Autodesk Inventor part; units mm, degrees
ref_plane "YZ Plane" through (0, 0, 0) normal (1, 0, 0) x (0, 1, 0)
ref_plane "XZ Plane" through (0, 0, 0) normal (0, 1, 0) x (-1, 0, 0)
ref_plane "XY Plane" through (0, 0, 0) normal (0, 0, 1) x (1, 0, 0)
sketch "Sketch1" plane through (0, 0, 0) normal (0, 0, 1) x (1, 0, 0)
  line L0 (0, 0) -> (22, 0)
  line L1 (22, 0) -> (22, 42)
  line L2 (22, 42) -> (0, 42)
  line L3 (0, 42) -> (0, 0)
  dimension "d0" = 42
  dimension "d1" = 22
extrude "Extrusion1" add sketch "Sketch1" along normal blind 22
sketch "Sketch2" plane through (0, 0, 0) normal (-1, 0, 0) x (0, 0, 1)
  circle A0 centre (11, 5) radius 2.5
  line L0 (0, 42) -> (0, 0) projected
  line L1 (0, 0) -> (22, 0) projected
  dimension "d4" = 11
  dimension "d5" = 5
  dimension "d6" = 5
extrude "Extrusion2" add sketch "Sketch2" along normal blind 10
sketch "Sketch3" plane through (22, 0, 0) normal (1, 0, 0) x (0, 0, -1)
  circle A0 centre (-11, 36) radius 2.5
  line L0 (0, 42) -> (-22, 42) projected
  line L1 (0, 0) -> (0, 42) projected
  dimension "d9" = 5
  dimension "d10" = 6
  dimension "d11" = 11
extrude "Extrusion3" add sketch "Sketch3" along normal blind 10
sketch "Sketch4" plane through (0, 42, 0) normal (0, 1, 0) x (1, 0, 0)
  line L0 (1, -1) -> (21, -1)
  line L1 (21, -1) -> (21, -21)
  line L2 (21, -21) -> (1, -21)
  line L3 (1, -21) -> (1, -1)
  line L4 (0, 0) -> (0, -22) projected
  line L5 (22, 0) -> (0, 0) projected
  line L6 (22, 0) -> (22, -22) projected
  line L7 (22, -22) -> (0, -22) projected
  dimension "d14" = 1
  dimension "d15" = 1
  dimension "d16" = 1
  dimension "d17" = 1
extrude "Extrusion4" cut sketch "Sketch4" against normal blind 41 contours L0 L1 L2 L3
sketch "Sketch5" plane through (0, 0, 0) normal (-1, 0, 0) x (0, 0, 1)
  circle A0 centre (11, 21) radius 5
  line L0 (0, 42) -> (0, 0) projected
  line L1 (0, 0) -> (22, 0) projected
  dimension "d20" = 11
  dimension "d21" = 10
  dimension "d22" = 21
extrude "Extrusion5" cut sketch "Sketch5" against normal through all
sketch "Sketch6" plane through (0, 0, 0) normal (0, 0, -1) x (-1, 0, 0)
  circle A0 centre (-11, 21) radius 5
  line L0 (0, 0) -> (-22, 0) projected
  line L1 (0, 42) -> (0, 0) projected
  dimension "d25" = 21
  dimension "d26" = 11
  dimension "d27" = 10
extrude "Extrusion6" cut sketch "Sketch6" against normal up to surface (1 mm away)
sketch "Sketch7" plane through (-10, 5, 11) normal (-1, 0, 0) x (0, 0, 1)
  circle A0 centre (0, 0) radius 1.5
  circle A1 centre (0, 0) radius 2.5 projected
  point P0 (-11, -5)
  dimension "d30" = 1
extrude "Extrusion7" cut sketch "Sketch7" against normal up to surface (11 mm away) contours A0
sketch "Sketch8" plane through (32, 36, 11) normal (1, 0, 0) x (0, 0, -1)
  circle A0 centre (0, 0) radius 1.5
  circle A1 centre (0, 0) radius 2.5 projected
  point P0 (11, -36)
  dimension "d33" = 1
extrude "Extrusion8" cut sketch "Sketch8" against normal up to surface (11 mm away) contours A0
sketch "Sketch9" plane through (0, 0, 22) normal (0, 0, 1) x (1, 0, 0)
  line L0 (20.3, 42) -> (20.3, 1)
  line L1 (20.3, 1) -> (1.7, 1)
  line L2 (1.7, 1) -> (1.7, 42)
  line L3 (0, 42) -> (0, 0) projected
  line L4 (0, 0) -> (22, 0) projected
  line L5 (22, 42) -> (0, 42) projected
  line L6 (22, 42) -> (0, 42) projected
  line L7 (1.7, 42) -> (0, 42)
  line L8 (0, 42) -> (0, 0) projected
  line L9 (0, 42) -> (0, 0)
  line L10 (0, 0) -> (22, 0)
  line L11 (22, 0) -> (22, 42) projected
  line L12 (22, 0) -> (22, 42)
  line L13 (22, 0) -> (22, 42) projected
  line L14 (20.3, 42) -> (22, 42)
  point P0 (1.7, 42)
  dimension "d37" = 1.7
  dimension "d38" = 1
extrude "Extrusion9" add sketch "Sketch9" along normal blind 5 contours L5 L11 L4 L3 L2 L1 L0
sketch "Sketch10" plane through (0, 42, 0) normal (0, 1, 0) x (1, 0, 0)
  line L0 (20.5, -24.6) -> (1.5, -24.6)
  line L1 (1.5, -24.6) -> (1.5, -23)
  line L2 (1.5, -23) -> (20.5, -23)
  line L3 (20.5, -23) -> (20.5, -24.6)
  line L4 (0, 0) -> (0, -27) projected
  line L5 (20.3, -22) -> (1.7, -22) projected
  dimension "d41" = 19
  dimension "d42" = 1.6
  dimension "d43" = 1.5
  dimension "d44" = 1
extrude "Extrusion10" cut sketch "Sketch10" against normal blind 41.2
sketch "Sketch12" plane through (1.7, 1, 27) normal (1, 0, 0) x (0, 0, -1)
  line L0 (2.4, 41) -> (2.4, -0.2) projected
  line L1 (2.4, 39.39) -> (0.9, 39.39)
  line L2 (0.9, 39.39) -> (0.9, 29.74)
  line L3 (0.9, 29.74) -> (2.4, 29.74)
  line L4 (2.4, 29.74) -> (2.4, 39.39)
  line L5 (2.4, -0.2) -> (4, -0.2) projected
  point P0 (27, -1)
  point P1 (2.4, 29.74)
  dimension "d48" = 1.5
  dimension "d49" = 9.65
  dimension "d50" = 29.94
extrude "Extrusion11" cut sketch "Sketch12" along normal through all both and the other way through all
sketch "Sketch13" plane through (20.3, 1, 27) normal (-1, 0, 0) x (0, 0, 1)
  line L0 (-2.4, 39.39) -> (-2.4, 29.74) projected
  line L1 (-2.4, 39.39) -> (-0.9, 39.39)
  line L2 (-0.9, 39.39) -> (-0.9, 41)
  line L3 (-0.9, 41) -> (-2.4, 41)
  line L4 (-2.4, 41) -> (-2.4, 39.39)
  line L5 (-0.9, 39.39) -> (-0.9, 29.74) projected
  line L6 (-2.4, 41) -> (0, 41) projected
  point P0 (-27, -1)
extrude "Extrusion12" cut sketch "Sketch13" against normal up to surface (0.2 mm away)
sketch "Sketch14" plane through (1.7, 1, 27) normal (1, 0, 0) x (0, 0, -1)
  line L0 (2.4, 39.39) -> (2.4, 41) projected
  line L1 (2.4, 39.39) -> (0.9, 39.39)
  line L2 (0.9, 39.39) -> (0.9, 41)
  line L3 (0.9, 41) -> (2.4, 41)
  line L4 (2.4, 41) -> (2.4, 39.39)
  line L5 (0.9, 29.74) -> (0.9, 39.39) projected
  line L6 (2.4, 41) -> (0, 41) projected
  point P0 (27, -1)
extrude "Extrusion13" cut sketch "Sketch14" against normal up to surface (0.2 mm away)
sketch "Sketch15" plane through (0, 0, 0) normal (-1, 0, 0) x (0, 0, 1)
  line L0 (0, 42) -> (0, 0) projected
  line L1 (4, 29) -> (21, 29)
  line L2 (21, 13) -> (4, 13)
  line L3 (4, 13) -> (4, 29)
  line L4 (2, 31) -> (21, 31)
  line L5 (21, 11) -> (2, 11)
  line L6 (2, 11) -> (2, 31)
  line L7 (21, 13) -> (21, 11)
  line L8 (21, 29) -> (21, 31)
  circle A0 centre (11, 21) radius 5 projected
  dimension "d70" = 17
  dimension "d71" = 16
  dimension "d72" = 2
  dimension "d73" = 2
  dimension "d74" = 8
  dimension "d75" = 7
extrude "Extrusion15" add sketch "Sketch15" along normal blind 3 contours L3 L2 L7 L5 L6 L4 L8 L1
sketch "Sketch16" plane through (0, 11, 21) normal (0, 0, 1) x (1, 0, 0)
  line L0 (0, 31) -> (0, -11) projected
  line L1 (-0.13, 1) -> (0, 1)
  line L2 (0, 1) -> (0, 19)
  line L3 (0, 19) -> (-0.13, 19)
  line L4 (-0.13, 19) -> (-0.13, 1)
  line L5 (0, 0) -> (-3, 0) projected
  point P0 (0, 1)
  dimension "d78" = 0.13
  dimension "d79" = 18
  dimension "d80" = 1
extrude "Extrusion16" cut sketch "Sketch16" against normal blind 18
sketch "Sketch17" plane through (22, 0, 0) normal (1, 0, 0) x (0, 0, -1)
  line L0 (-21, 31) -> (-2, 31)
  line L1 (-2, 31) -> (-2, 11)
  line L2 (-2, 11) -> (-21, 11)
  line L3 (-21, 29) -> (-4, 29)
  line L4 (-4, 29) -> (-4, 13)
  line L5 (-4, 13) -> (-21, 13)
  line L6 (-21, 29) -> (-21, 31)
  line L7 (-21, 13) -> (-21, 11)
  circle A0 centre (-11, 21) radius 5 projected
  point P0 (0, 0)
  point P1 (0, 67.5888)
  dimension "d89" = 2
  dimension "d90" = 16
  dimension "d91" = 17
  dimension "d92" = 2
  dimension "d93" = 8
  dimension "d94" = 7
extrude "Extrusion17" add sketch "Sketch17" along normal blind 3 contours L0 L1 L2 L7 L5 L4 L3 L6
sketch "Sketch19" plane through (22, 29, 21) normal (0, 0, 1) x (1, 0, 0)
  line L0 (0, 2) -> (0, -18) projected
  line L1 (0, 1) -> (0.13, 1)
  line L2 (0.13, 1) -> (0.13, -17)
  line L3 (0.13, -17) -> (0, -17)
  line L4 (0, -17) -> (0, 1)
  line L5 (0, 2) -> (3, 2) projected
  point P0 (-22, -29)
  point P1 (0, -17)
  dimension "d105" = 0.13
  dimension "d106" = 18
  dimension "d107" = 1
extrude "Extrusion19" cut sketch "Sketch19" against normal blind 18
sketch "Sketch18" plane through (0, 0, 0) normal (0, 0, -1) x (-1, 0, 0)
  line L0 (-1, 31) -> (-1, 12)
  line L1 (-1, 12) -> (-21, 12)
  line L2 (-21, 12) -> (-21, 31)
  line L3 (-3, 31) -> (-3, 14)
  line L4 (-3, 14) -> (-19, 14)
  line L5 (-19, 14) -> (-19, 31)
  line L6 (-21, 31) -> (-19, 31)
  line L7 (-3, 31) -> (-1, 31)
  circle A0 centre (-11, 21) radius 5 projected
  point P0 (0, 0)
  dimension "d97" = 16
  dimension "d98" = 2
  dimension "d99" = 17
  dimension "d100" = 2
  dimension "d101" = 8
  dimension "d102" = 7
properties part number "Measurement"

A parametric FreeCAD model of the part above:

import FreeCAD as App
import Part
import Sketcher
from FreeCAD import Vector
Q = App.Units.Quantity


def add_polygon(sketch, points):
    """Adds a closed chain of lines whose ends are joined by coincident constraints."""
    first, n = sketch.GeometryCount, len(points)
    for a, b in zip(points, points[1:] + points[:1]):
        sketch.addGeometry(Part.LineSegment(App.Vector(*a, 0), App.Vector(*b, 0)), False)
    for i in range(n):
        sketch.addConstraint(Sketcher.Constraint("Coincident", first + i, 2, first + (i + 1) % n, 1))

doc = App.newDocument("Part")
body = doc.addObject("PartDesign::Body", "Body")

# Sketch on XY plane
sketch1 = body.newObject("Sketcher::SketchObject", "Sketch")
sketch1.AttachmentSupport = (doc.getObject("XY_Plane"), [""])
sketch1.MapMode = "FlatFace"
add_polygon(sketch1, [(0, 42), (0, 0), (22, 0), (22, 42)])  # lines 0-3
sketch1.addConstraint([
    Sketcher.Constraint("Vertical", 0),
    Sketcher.Constraint("Horizontal", 1),
    Sketcher.Constraint("Vertical", 2),
    Sketcher.Constraint("Horizontal", 3),
    Sketcher.Constraint("Coincident", 0, 2, -1, 1),
    Sketcher.Constraint("DistanceX", 1, 1, 1, 2, Q("22 mm")),
    Sketcher.Constraint("DistanceY", 0, 2, 0, 1, Q("42 mm")),
])
pad1 = body.newObject("PartDesign::Pad", "Pad")
pad1.Profile = sketch1
pad1.Length = 22

# Sketch on YZ plane
sketch2 = body.newObject("Sketcher::SketchObject", "Sketch001")
sketch2.AttachmentSupport = (doc.getObject("YZ_Plane"), [""])
sketch2.MapMode = "FlatFace"
sketch2.addGeometry(Part.Circle(Vector(5, 11, 0), Vector(0, 0, 1), 2.5), False)
sketch2.addConstraint([
    Sketcher.Constraint("Diameter", 0, Q("5 mm")),
    Sketcher.Constraint("DistanceX", -1, 1, 0, 3, Q("5 mm")),
    Sketcher.Constraint("DistanceY", -1, 1, 0, 3, Q("11 mm")),
])
pad2 = body.newObject("PartDesign::Pad", "Pad001")
pad2.Profile = sketch2
pad2.Length = 10
pad2.Reversed = True

# Sketch on YZ plane
sketch3 = body.newObject("Sketcher::SketchObject", "Sketch002")
sketch3.AttachmentSupport = (doc.getObject("YZ_Plane"), [""])
sketch3.MapMode = "FlatFace"
sketch3.AttachmentOffset = App.Placement(Vector(0, 0, 22), App.Rotation())
sketch3.addGeometry(Part.Circle(Vector(36, 11, 0), Vector(0, 0, 1), 2.5), False)
sketch3.addConstraint([
    Sketcher.Constraint("Diameter", 0, Q("5 mm")),
    Sketcher.Constraint("DistanceY", -1, 1, 0, 3, Q("11 mm")),
    Sketcher.Constraint("DistanceX", -1, 1, 0, 3, Q("36 mm")),
])
pad3 = body.newObject("PartDesign::Pad", "Pad002")
pad3.Profile = sketch3
pad3.Length = 10

# Sketch on XZ plane
sketch4 = body.newObject("Sketcher::SketchObject", "Sketch003")
sketch4.AttachmentSupport = (doc.getObject("XZ_Plane"), [""])
sketch4.MapMode = "FlatFace"
sketch4.AttachmentOffset = App.Placement(Vector(0, 0, -42), App.Rotation())
add_polygon(sketch4, [(21, 1), (1, 1), (1, 21), (21, 21)])  # lines 0-3
sketch4.addConstraint([
    Sketcher.Constraint("Horizontal", 0),
    Sketcher.Constraint("Vertical", 1),
    Sketcher.Constraint("Horizontal", 2),
    Sketcher.Constraint("Vertical", 3),
    Sketcher.Constraint("Equal", 2, 1),
    Sketcher.Constraint("DistanceX", -1, 1, 0, 2, Q("1 mm")),
    Sketcher.Constraint("DistanceY", -1, 1, 0, 2, Q("1 mm")),
    Sketcher.Constraint("DistanceX", 0, 2, 0, 1, Q("20 mm")),
])
pocket1 = body.newObject("PartDesign::Pocket", "Pocket")
pocket1.Profile = sketch4
pocket1.Length = 41
pocket1.Reversed = True

# Sketch on YZ plane
sketch5 = body.newObject("Sketcher::SketchObject", "Sketch004")
sketch5.AttachmentSupport = (doc.getObject("YZ_Plane"), [""])
sketch5.MapMode = "FlatFace"
sketch5.addGeometry(Part.Circle(Vector(21, 11, 0), Vector(0, 0, 1), 5), False)
sketch5.addConstraint([
    Sketcher.Constraint("Diameter", 0, Q("10 mm")),
    Sketcher.Constraint("DistanceX", -1, 1, 0, 3, Q("21 mm")),
    Sketcher.Constraint("DistanceY", -1, 1, 0, 3, Q("11 mm")),
])
pocket2 = body.newObject("PartDesign::Pocket", "Pocket001")
pocket2.Profile = sketch5
pocket2.Type = "ThroughAll"
pocket2.Reversed = True

# Sketch on XY plane
sketch6 = body.newObject("Sketcher::SketchObject", "Sketch005")
sketch6.AttachmentSupport = (doc.getObject("XY_Plane"), [""])
sketch6.MapMode = "FlatFace"
sketch6.addGeometry(Part.Circle(Vector(11, 21, 0), Vector(0, 0, 1), 5), False)
sketch6.addConstraint([
    Sketcher.Constraint("Diameter", 0, Q("10 mm")),
    Sketcher.Constraint("DistanceX", -1, 1, 0, 3, Q("11 mm")),
    Sketcher.Constraint("DistanceY", -1, 1, 0, 3, Q("21 mm")),
])
pocket3 = body.newObject("PartDesign::Pocket", "Pocket002")
pocket3.Profile = sketch6
pocket3.Length = 1
pocket3.Reversed = True

# Sketch on YZ plane
sketch7 = body.newObject("Sketcher::SketchObject", "Sketch006")
sketch7.AttachmentSupport = (doc.getObject("YZ_Plane"), [""])
sketch7.MapMode = "FlatFace"
sketch7.AttachmentOffset = App.Placement(Vector(0, 0, -10), App.Rotation())
sketch7.addGeometry(Part.Circle(Vector(5, 11, 0), Vector(0, 0, 1), 1.5), False)
sketch7.addConstraint([
    Sketcher.Constraint("Diameter", 0, Q("3 mm")),
    Sketcher.Constraint("DistanceX", -1, 1, 0, 3, Q("5 mm")),
    Sketcher.Constraint("DistanceY", -1, 1, 0, 3, Q("11 mm")),
])
pocket4 = body.newObject("PartDesign::Pocket", "Pocket003")
pocket4.Profile = sketch7
pocket4.Length = 11
pocket4.Reversed = True

# Sketch on YZ plane
sketch8 = body.newObject("Sketcher::SketchObject", "Sketch007")
sketch8.AttachmentSupport = (doc.getObject("YZ_Plane"), [""])
sketch8.MapMode = "FlatFace"
sketch8.AttachmentOffset = App.Placement(Vector(0, 0, 32), App.Rotation())
sketch8.addGeometry(Part.Circle(Vector(36, 11, 0), Vector(0, 0, 1), 1.5), False)
sketch8.addConstraint([
    Sketcher.Constraint("Diameter", 0, Q("3 mm")),
    Sketcher.Constraint("DistanceX", -1, 1, 0, 3, Q("36 mm")),
    Sketcher.Constraint("DistanceY", -1, 1, 0, 3, Q("11 mm")),
])
pocket5 = body.newObject("PartDesign::Pocket", "Pocket004")
pocket5.Profile = sketch8
pocket5.Length = 11

# Sketch on XY plane
sketch9 = body.newObject("Sketcher::SketchObject", "Sketch008")
sketch9.AttachmentSupport = (doc.getObject("XY_Plane"), [""])
sketch9.MapMode = "FlatFace"
sketch9.AttachmentOffset = App.Placement(Vector(0, 0, 22), App.Rotation())
add_polygon(sketch9, [(22, 42), (20.3, 42), (20.3, 1), (1.7, 1), (1.7, 42), (0, 42), (0, 0), (22, 0)])  # lines 0-7
sketch9.addConstraint([
    Sketcher.Constraint("Horizontal", 0),
    Sketcher.Constraint("Vertical", 1),
    Sketcher.Constraint("Horizontal", 2),
    Sketcher.Constraint("Vertical", 3),
    Sketcher.Constraint("Horizontal", 4),
    Sketcher.Constraint("Vertical", 5),
    Sketcher.Constraint("Horizontal", 6),
    Sketcher.Constraint("Vertical", 7),
    Sketcher.Constraint("Coincident", 5, 2, -1, 1),
    Sketcher.Constraint("Horizontal", 0, 2, 3, 2),
    Sketcher.Constraint("Equal", 0, 4),
    Sketcher.Constraint("DistanceX", 0, 2, 0, 1, Q("1.7 mm")),
    Sketcher.Constraint("DistanceY", -1, 1, 1, 2, Q("1 mm")),
    Sketcher.Constraint("DistanceX", 6, 1, 6, 2, Q("22 mm")),
    Sketcher.Constraint("DistanceY", 1, 2, 1, 1, Q("41 mm")),
])
pad4 = body.newObject("PartDesign::Pad", "Pad003")
pad4.Profile = sketch9
pad4.Length = 5

# Sketch on XZ plane
sketch10 = body.newObject("Sketcher::SketchObject", "Sketch009")
sketch10.AttachmentSupport = (doc.getObject("XZ_Plane"), [""])
sketch10.MapMode = "FlatFace"
sketch10.AttachmentOffset = App.Placement(Vector(0, 0, -42), App.Rotation())
add_polygon(sketch10, [(1.5, 24.6), (20.5, 24.6), (20.5, 23), (1.5, 23)])  # lines 0-3
sketch10.addConstraint([
    Sketcher.Constraint("Horizontal", 0),
    Sketcher.Constraint("Vertical", 1),
    Sketcher.Constraint("Horizontal", 2),
    Sketcher.Constraint("Vertical", 3),
    Sketcher.Constraint("DistanceX", 0, 1, 0, 2, Q("19 mm")),
    Sketcher.Constraint("DistanceY", 1, 2, 1, 1, Q("1.6 mm")),
    Sketcher.Constraint("DistanceX", -1, 1, 2, 2, Q("1.5 mm")),
    Sketcher.Constraint("DistanceY", -1, 1, 1, 2, Q("23 mm")),
])
pocket6 = body.newObject("PartDesign::Pocket", "Pocket005")
pocket6.Profile = sketch10
pocket6.Length = 41.2
pocket6.Reversed = True

# Sketch on YZ plane
sketch11 = body.newObject("Sketcher::SketchObject", "Sketch010")
sketch11.AttachmentSupport = (doc.getObject("YZ_Plane"), [""])
sketch11.MapMode = "FlatFace"
sketch11.AttachmentOffset = App.Placement(Vector(0, 0, 1.7), App.Rotation())
add_polygon(sketch11, [(30.74, 24.6), (40.39, 24.6), (40.39, 26.1), (30.74, 26.1)])  # lines 0-3
sketch11.addConstraint([
    Sketcher.Constraint("Horizontal", 0),
    Sketcher.Constraint("Vertical", 1),
    Sketcher.Constraint("Horizontal", 2),
    Sketcher.Constraint("Vertical", 3),
    Sketcher.Constraint("DistanceY", 1, 1, 1, 2, Q("1.5 mm")),
    Sketcher.Constraint("DistanceX", 0, 1, 0, 2, Q("9.65 mm")),
    Sketcher.Constraint("DistanceY", -1, 1, 0, 2, Q("24.6 mm")),
    Sketcher.Constraint("DistanceX", -1, 1, 0, 2, Q("40.39 mm")),
])
pocket7 = body.newObject("PartDesign::Pocket", "Pocket006")
pocket7.Profile = sketch11
pocket7.Type = "ThroughAll"
pocket7.Midplane = True

# Sketch on YZ plane
sketch12 = body.newObject("Sketcher::SketchObject", "Sketch011")
sketch12.AttachmentSupport = (doc.getObject("YZ_Plane"), [""])
sketch12.MapMode = "FlatFace"
sketch12.AttachmentOffset = App.Placement(Vector(0, 0, 20.3), App.Rotation())
add_polygon(sketch12, [(42, 24.6), (40.39, 24.6), (40.39, 26.1), (42, 26.1)])  # lines 0-3
sketch12.addConstraint([
    Sketcher.Constraint("Horizontal", 0),
    Sketcher.Constraint("Vertical", 1),
    Sketcher.Constraint("Horizontal", 2),
    Sketcher.Constraint("Vertical", 3),
    Sketcher.Constraint("DistanceY", 1, 1, 1, 2, Q("1.5 mm")),
    Sketcher.Constraint("DistanceX", -1, 1, 2, 2, Q("42 mm")),
    Sketcher.Constraint("DistanceX", 0, 2, 0, 1, Q("1.61 mm")),
    Sketcher.Constraint("DistanceY", -1, 1, 0, 2, Q("24.6 mm")),
])
pocket8 = body.newObject("PartDesign::Pocket", "Pocket007")
pocket8.Profile = sketch12
pocket8.Length = 0.2
pocket8.Reversed = True

# Sketch on YZ plane
sketch13 = body.newObject("Sketcher::SketchObject", "Sketch012")
sketch13.AttachmentSupport = (doc.getObject("YZ_Plane"), [""])
sketch13.MapMode = "FlatFace"
sketch13.AttachmentOffset = App.Placement(Vector(0, 0, 1.7), App.Rotation())
add_polygon(sketch13, [(40.39, 26.1), (40.39, 24.6), (42, 24.6), (42, 26.1)])  # lines 0-3
sketch13.addConstraint([
    Sketcher.Constraint("Vertical", 0),
    Sketcher.Constraint("Horizontal", 1),
    Sketcher.Constraint("Vertical", 2),
    Sketcher.Constraint("Horizontal", 3),
    Sketcher.Constraint("DistanceY", 0, 2, 0, 1, Q("1.5 mm")),
    Sketcher.Constraint("DistanceX", -1, 1, 1, 2, Q("42 mm")),
    Sketcher.Constraint("DistanceX", 1, 1, 1, 2, Q("1.61 mm")),
    Sketcher.Constraint("DistanceY", -1, 1, 0, 2, Q("24.6 mm")),
])
pocket9 = body.newObject("PartDesign::Pocket", "Pocket008")
pocket9.Profile = sketch13
pocket9.Length = 0.2

# Sketch on YZ plane
sketch14 = body.newObject("Sketcher::SketchObject", "Sketch013")
sketch14.AttachmentSupport = (doc.getObject("YZ_Plane"), [""])
sketch14.MapMode = "FlatFace"
add_polygon(sketch14, [(13, 4), (29, 4), (29, 21), (31, 21), (31, 2), (11, 2), (11, 21), (13, 21)])  # lines 0-7
sketch14.addConstraint([
    Sketcher.Constraint("Horizontal", 0),
    Sketcher.Constraint("Vertical", 1),
    Sketcher.Constraint("Horizontal", 2),
    Sketcher.Constraint("Vertical", 3),
    Sketcher.Constraint("Horizontal", 4),
    Sketcher.Constraint("Vertical", 5),
    Sketcher.Constraint("Horizontal", 6),
    Sketcher.Constraint("Vertical", 7),
    Sketcher.Constraint("Horizontal", 2, 2, 5, 2),
    Sketcher.Constraint("Equal", 2, 6),
    Sketcher.Constraint("DistanceX", 0, 1, 0, 2, Q("16 mm")),
    Sketcher.Constraint("DistanceX", 2, 1, 2, 2, Q("2 mm")),
    Sketcher.Constraint("DistanceY", 1, 1, 1, 2, Q("17 mm")),
    Sketcher.Constraint("DistanceY", -1, 1, 3, 2, Q("2 mm")),
    Sketcher.Constraint("DistanceY", 3, 2, 0, 2, Q("2 mm")),
    Sketcher.Constraint("DistanceX", -1, 1, 0, 2, Q("29 mm")),
])
pad5 = body.newObject("PartDesign::Pad", "Pad004")
pad5.Profile = sketch14
pad5.Length = 3
pad5.Reversed = True

# Sketch on XY plane
sketch15 = body.newObject("Sketcher::SketchObject", "Sketch014")
sketch15.AttachmentSupport = (doc.getObject("XY_Plane"), [""])
sketch15.MapMode = "FlatFace"
sketch15.AttachmentOffset = App.Placement(Vector(0, 0, 21), App.Rotation())
add_polygon(sketch15, [(0, 12), (0, 30), (-0.13, 30), (-0.13, 12)])  # lines 0-3
sketch15.addConstraint([
    Sketcher.Constraint("Vertical", 0),
    Sketcher.Constraint("Horizontal", 1),
    Sketcher.Constraint("Vertical", 2),
    Sketcher.Constraint("Horizontal", 3),
    Sketcher.Constraint("PointOnObject", 0, 2, -2),
    Sketcher.Constraint("DistanceY", 0, 1, 0, 2, Q("18 mm")),
    Sketcher.Constraint("DistanceX", 1, 2, 1, 1, Q("0.13 mm")),
    Sketcher.Constraint("DistanceY", -1, 1, 0, 2, Q("30 mm")),
])
pocket10 = body.newObject("PartDesign::Pocket", "Pocket009")
pocket10.Profile = sketch15
pocket10.Length = 18

# Sketch on YZ plane
sketch16 = body.newObject("Sketcher::SketchObject", "Sketch015")
sketch16.AttachmentSupport = (doc.getObject("YZ_Plane"), [""])
sketch16.MapMode = "FlatFace"
sketch16.AttachmentOffset = App.Placement(Vector(0, 0, 22), App.Rotation())
add_polygon(sketch16, [(31, 2), (31, 21), (29, 21), (29, 4), (13, 4), (13, 21), (11, 21), (11, 2)])  # lines 0-7
sketch16.addConstraint([
    Sketcher.Constraint("Vertical", 0),
    Sketcher.Constraint("Horizontal", 1),
    Sketcher.Constraint("Vertical", 2),
    Sketcher.Constraint("Horizontal", 3),
    Sketcher.Constraint("Vertical", 4),
    Sketcher.Constraint("Horizontal", 5),
    Sketcher.Constraint("Vertical", 6),
    Sketcher.Constraint("Horizontal", 7),
    Sketcher.Constraint("Horizontal", 1, 2, 4, 2),
    Sketcher.Constraint("Equal", 1, 5),
    Sketcher.Constraint("DistanceX", 1, 2, 1, 1, Q("2 mm")),
    Sketcher.Constraint("DistanceX", 3, 2, 3, 1, Q("16 mm")),
    Sketcher.Constraint("DistanceY", 2, 2, 2, 1, Q("17 mm")),
    Sketcher.Constraint("DistanceY", -1, 1, 6, 2, Q("2 mm")),
    Sketcher.Constraint("DistanceY", 6, 2, 3, 2, Q("2 mm")),
    Sketcher.Constraint("DistanceX", -1, 1, 0, 2, Q("31 mm")),
])
pad6 = body.newObject("PartDesign::Pad", "Pad005")
pad6.Profile = sketch16
pad6.Length = 3

# Sketch on XY plane
sketch17 = body.newObject("Sketcher::SketchObject", "Sketch016")
sketch17.AttachmentSupport = (doc.getObject("XY_Plane"), [""])
sketch17.MapMode = "FlatFace"
sketch17.AttachmentOffset = App.Placement(Vector(0, 0, 21), App.Rotation())
add_polygon(sketch17, [(22.13, 30), (22, 30), (22, 12), (22.13, 12)])  # lines 0-3
sketch17.addConstraint([
    Sketcher.Constraint("Horizontal", 0),
    Sketcher.Constraint("Vertical", 1),
    Sketcher.Constraint("Horizontal", 2),
    Sketcher.Constraint("Vertical", 3),
    Sketcher.Constraint("DistanceY", 1, 2, 1, 1, Q("18 mm")),
    Sketcher.Constraint("DistanceX", 0, 2, 0, 1, Q("0.13 mm")),
    Sketcher.Constraint("DistanceX", -1, 1, 0, 2, Q("22 mm")),
    Sketcher.Constraint("DistanceY", -1, 1, 0, 2, Q("30 mm")),
])
pocket11 = body.newObject("PartDesign::Pocket", "Pocket010")
pocket11.Profile = sketch17
pocket11.Length = 18

doc.recompute()
